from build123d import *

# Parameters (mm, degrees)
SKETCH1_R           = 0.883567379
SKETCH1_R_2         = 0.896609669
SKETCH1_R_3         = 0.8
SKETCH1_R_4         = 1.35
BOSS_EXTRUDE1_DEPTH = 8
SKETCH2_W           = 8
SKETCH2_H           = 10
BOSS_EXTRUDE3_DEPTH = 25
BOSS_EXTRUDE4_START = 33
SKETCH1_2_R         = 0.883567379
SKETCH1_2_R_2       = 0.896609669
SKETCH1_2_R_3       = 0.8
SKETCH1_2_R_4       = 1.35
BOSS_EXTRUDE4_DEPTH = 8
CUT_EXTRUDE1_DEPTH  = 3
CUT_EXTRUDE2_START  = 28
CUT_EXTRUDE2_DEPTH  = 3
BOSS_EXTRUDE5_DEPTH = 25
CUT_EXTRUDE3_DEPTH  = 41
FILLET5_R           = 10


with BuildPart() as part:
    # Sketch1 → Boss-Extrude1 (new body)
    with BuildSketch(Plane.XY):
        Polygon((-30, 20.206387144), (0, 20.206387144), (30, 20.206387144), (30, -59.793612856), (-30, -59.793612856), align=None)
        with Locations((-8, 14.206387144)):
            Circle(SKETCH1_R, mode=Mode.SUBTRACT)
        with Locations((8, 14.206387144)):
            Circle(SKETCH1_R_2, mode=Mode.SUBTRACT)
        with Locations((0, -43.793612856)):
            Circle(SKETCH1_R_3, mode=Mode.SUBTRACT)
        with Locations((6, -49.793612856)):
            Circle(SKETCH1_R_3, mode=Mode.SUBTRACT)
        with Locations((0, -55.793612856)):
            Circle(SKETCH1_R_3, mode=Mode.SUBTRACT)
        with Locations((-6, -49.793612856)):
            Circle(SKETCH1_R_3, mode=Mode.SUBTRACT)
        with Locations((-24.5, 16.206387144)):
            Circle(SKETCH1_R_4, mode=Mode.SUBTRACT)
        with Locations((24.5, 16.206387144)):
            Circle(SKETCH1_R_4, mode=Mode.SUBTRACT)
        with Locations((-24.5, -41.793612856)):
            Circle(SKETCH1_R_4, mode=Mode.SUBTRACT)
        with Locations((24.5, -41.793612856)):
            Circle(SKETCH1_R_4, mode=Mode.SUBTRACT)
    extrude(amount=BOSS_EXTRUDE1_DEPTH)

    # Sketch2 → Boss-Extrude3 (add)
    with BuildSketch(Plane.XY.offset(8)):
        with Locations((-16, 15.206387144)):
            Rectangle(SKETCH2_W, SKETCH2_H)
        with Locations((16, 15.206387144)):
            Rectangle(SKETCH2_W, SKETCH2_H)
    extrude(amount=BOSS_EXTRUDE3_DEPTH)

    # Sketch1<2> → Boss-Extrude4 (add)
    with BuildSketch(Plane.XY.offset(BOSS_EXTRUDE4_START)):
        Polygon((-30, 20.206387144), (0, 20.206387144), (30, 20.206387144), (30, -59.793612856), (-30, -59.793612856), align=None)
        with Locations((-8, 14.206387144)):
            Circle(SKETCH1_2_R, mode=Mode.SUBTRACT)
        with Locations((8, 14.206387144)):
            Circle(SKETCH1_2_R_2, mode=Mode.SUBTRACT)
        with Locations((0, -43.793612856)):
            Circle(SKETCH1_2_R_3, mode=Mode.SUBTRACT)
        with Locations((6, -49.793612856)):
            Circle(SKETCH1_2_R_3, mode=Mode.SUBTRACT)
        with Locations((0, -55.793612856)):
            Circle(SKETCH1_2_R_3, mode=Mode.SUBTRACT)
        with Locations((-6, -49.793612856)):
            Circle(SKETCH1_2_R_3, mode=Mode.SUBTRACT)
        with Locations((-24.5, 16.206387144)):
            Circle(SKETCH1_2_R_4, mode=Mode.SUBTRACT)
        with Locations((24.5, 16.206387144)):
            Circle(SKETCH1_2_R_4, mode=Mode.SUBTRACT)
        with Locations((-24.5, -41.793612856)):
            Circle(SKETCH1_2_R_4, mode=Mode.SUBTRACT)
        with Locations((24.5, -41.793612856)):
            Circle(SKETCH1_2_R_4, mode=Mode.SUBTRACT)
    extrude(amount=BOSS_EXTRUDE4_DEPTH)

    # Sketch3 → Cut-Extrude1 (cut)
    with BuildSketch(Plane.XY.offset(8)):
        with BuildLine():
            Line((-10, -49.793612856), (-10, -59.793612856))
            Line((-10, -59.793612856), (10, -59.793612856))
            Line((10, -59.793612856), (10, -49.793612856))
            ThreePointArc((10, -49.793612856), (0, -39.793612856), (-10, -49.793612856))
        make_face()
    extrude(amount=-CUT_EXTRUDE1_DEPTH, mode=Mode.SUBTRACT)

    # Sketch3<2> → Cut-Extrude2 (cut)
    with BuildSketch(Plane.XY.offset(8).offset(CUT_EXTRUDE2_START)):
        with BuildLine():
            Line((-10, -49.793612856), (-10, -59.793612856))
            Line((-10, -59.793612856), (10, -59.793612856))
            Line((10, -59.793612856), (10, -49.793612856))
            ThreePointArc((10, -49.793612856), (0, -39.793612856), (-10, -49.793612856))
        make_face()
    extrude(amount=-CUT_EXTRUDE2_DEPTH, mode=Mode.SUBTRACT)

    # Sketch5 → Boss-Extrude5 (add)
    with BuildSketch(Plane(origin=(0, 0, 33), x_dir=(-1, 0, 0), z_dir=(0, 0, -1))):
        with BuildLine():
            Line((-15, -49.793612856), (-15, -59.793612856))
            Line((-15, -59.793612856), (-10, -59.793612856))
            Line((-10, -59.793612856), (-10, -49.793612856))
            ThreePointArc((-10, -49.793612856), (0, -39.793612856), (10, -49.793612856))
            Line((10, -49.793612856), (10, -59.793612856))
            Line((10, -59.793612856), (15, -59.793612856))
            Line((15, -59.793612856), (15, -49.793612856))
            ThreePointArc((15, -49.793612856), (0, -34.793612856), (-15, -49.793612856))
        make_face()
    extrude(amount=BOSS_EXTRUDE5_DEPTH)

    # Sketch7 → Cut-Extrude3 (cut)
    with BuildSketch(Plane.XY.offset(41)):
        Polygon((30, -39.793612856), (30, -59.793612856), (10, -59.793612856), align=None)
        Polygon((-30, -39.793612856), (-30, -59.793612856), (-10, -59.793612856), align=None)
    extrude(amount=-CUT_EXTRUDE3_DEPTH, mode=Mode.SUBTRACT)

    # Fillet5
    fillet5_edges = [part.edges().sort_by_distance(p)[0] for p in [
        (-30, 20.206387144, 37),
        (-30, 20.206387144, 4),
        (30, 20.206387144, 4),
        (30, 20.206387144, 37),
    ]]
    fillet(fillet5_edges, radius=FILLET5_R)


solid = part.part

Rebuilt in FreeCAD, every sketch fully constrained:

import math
import FreeCAD as App
import Part
import Sketcher


def edges_at(feature, points):
    """Names of the edges that pass closest to the given points."""
    edges = feature.Shape.Edges
    near = lambda p: min(range(len(edges)), key=lambda i: edges[i].distToShape(Part.Vertex(*p))[0])
    return sorted({f"Edge{near(p) + 1}" for p in points})


def add_polygon(sketch, points):
    """Adds a closed chain of lines whose ends are joined by coincident constraints."""
    first, n = sketch.GeometryCount, len(points)
    for a, b in zip(points, points[1:] + points[:1]):
        sketch.addGeometry(Part.LineSegment(App.Vector(*a, 0), App.Vector(*b, 0)), False)
    for i in range(n):
        sketch.addConstraint(Sketcher.Constraint("Coincident", first + i, 2, first + (i + 1) % n, 1))

doc = App.newDocument("Part")
body = doc.addObject("PartDesign::Body", "Body")

sketch1 = body.newObject("Sketcher::SketchObject", "Sketch")
sketch1.AttachmentSupport = (doc.getObject("XY_Plane"), [""])
sketch1.MapMode = "FlatFace"
add_polygon(sketch1, [(30, 20.2), (-30, 20.2), (-30, -59.8), (30, -59.8)])
sketch1.addGeometry(Part.Circle(App.Vector(24.5, -41.8, 0), App.Vector(0, 0, 1), 1.4), False)
sketch1.addGeometry(Part.Circle(App.Vector(6, -49.8, 0), App.Vector(0, 0, 1), 0.8), False)
sketch1.addGeometry(Part.Circle(App.Vector(0, -55.8, 0), App.Vector(0, 0, 1), 0.8), False)
sketch1.addGeometry(Part.Circle(App.Vector(-6, -49.8, 0), App.Vector(0, 0, 1), 0.8), False)
sketch1.addGeometry(Part.Circle(App.Vector(0, -43.8, 0), App.Vector(0, 0, 1), 0.8), False)
sketch1.addGeometry(Part.Circle(App.Vector(-24.5, -41.8, 0), App.Vector(0, 0, 1), 1.4), False)
sketch1.addGeometry(Part.Circle(App.Vector(24.5, 16.2, 0), App.Vector(0, 0, 1), 1.4), False)
sketch1.addGeometry(Part.Circle(App.Vector(8, 14.2, 0), App.Vector(0, 0, 1), 0.9), False)
sketch1.addGeometry(Part.Circle(App.Vector(-8, 14.2, 0), App.Vector(0, 0, 1), 0.9), False)
sketch1.addGeometry(Part.Circle(App.Vector(-24.5, 16.2, 0), App.Vector(0, 0, 1), 1.4), False)
sketch1.addConstraint(Sketcher.Constraint("Horizontal", 0))
sketch1.addConstraint(Sketcher.Constraint("Vertical", 1))
sketch1.addConstraint(Sketcher.Constraint("Horizontal", 2))
sketch1.addConstraint(Sketcher.Constraint("Vertical", 3))
sketch1.addConstraint(Sketcher.Constraint("Equal", 5, 6))
sketch1.addConstraint(Sketcher.Constraint("Equal", 6, 7))
sketch1.addConstraint(Sketcher.Constraint("Equal", 7, 8))
sketch1.addConstraint(Sketcher.Constraint("Equal", 4, 9))
sketch1.addConstraint(Sketcher.Constraint("Equal", 9, 10))
sketch1.addConstraint(Sketcher.Constraint("Equal", 10, 13))
sketch1.addConstraint(Sketcher.Constraint("Symmetric", 5, 3, 7, 3, -2))
sketch1.addConstraint(Sketcher.Constraint("Symmetric", 4, 3, 9, 3, -2))
sketch1.addConstraint(Sketcher.Constraint("Symmetric", 11, 3, 12, 3, -2))
sketch1.addConstraint(Sketcher.Constraint("Symmetric", 10, 3, 13, 3, -2))
sketch1.addConstraint(Sketcher.Constraint("PointOnObject", 6, 3, -2))
sketch1.addConstraint(Sketcher.Constraint("PointOnObject", 8, 3, -2))
sketch1.addConstraint(Sketcher.Constraint("Vertical", 4, 3, 10, 3))
sketch1.addConstraint(Sketcher.Constraint("Diameter", 4, 2.7))
sketch1.addConstraint(Sketcher.Constraint("Diameter", 5, 1.6))
sketch1.addConstraint(Sketcher.Constraint("DistanceX", 0, 2, 0, 1, 60.0))
sketch1.addConstraint(Sketcher.Constraint("DistanceY", 1, 2, 1, 1, 80.0))
sketch1.addConstraint(Sketcher.Constraint("DistanceX", -1, 1, 5, 3, 6.0))
sketch1.addConstraint(Sketcher.Constraint("DistanceX", -1, 1, 11, 3, 8.0))
sketch1.addConstraint(Sketcher.Constraint("DistanceX", 0, 2, -1, 1, 30.0))
sketch1.addConstraint(Sketcher.Constraint("DistanceY", 5, 3, 4, 3, 8.0))
sketch1.addConstraint(Sketcher.Constraint("DistanceY", 6, 3, 5, 3, 6.0))
sketch1.addConstraint(Sketcher.Constraint("DistanceY", 5, 3, 8, 3, 6.0))
sketch1.addConstraint(Sketcher.Constraint("DistanceX", 9, 3, 4, 3, 49.0))
sketch1.addConstraint(Sketcher.Constraint("DistanceY", 4, 3, 10, 3, 58.0))
sketch1.addConstraint(Sketcher.Constraint("DistanceY", 11, 3, 10, 3, 2.0))
sketch1.addConstraint(Sketcher.Constraint("DistanceY", 13, 3, 0, 2, 4.0))
sketch1.addConstraint(Sketcher.Constraint("Diameter", 11, 1.793219))
sketch1.addConstraint(Sketcher.Constraint("Diameter", 12, 1.767135))
sketch1.addConstraint(Sketcher.Constraint("DistanceY", 4, 3, -1, 1, 41.793613))
pad1 = body.newObject("PartDesign::Pad", "Pad")
pad1.Profile = sketch1
pad1.Length = 8

sketch2 = body.newObject("Sketcher::SketchObject", "Sketch001")
sketch2.AttachmentSupport = (doc.getObject("XY_Plane"), [""])
sketch2.MapMode = "FlatFace"
sketch2.AttachmentOffset = App.Placement(App.Vector(0, 0, 8), App.Rotation())
add_polygon(sketch2, [(-20, 20), (-20, 10), (-12, 10), (-12, 20)])
add_polygon(sketch2, [(12, 20), (12, 10), (20, 10), (20, 20)])
sketch2.addConstraint(Sketcher.Constraint("Vertical", 0))
sketch2.addConstraint(Sketcher.Constraint("Horizontal", 1))
sketch2.addConstraint(Sketcher.Constraint("Vertical", 2))
sketch2.addConstraint(Sketcher.Constraint("Horizontal", 3))
sketch2.addConstraint(Sketcher.Constraint("Vertical", 4))
sketch2.addConstraint(Sketcher.Constraint("Horizontal", 5))
sketch2.addConstraint(Sketcher.Constraint("Vertical", 6))
sketch2.addConstraint(Sketcher.Constraint("Horizontal", 7))
sketch2.addConstraint(Sketcher.Constraint("Symmetric", 1, 2, 4, 2, -2))
sketch2.addConstraint(Sketcher.Constraint("Symmetric", 3, 2, 6, 2, -2))
sketch2.addConstraint(Sketcher.Constraint("DistanceX", 1, 1, 1, 2, 8.0))
sketch2.addConstraint(Sketcher.Constraint("DistanceY", 0, 2, 0, 1, 10.0))
sketch2.addConstraint(Sketcher.Constraint("DistanceX", 0, 2, -1, 1, 20.0))
sketch2.addConstraint(Sketcher.Constraint("DistanceY", -1, 1, 0, 2, 10.206387))
pad2 = body.newObject("PartDesign::Pad", "Pad001")
pad2.Profile = sketch2
pad2.Length = 25

sketch3 = body.newObject("Sketcher::SketchObject", "Sketch002")
sketch3.AttachmentSupport = (doc.getObject("XY_Plane"), [""])
sketch3.MapMode = "FlatFace"
sketch3.AttachmentOffset = App.Placement(App.Vector(0, 0, 33), App.Rotation())
add_polygon(sketch3, [(30, 20.2), (-30, 20.2), (-30, -59.8), (30, -59.8)])
sketch3.addGeometry(Part.Circle(App.Vector(24.5, -41.8, 0), App.Vector(0, 0, 1), 1.4), False)
sketch3.addGeometry(Part.Circle(App.Vector(6, -49.8, 0), App.Vector(0, 0, 1), 0.8), False)
sketch3.addGeometry(Part.Circle(App.Vector(0, -55.8, 0), App.Vector(0, 0, 1), 0.8), False)
sketch3.addGeometry(Part.Circle(App.Vector(-6, -49.8, 0), App.Vector(0, 0, 1), 0.8), False)
sketch3.addGeometry(Part.Circle(App.Vector(0, -43.8, 0), App.Vector(0, 0, 1), 0.8), False)
sketch3.addGeometry(Part.Circle(App.Vector(-24.5, -41.8, 0), App.Vector(0, 0, 1), 1.4), False)
sketch3.addGeometry(Part.Circle(App.Vector(24.5, 16.2, 0), App.Vector(0, 0, 1), 1.4), False)
sketch3.addGeometry(Part.Circle(App.Vector(8, 14.2, 0), App.Vector(0, 0, 1), 0.9), False)
sketch3.addGeometry(Part.Circle(App.Vector(-8, 14.2, 0), App.Vector(0, 0, 1), 0.9), False)
sketch3.addGeometry(Part.Circle(App.Vector(-24.5, 16.2, 0), App.Vector(0, 0, 1), 1.4), False)
sketch3.addConstraint(Sketcher.Constraint("Horizontal", 0))
sketch3.addConstraint(Sketcher.Constraint("Vertical", 1))
sketch3.addConstraint(Sketcher.Constraint("Horizontal", 2))
sketch3.addConstraint(Sketcher.Constraint("Vertical", 3))
sketch3.addConstraint(Sketcher.Constraint("Equal", 5, 6))
sketch3.addConstraint(Sketcher.Constraint("Equal", 6, 7))
sketch3.addConstraint(Sketcher.Constraint("Equal", 7, 8))
sketch3.addConstraint(Sketcher.Constraint("Equal", 4, 9))
sketch3.addConstraint(Sketcher.Constraint("Equal", 9, 10))
sketch3.addConstraint(Sketcher.Constraint("Equal", 10, 13))
sketch3.addConstraint(Sketcher.Constraint("Symmetric", 5, 3, 7, 3, -2))
sketch3.addConstraint(Sketcher.Constraint("Symmetric", 4, 3, 9, 3, -2))
sketch3.addConstraint(Sketcher.Constraint("Symmetric", 11, 3, 12, 3, -2))
sketch3.addConstraint(Sketcher.Constraint("Symmetric", 10, 3, 13, 3, -2))
sketch3.addConstraint(Sketcher.Constraint("PointOnObject", 6, 3, -2))
sketch3.addConstraint(Sketcher.Constraint("PointOnObject", 8, 3, -2))
sketch3.addConstraint(Sketcher.Constraint("Vertical", 4, 3, 10, 3))
sketch3.addConstraint(Sketcher.Constraint("Diameter", 4, 2.7))
sketch3.addConstraint(Sketcher.Constraint("Diameter", 5, 1.6))
sketch3.addConstraint(Sketcher.Constraint("DistanceX", 0, 2, 0, 1, 60.0))
sketch3.addConstraint(Sketcher.Constraint("DistanceY", 1, 2, 1, 1, 80.0))
sketch3.addConstraint(Sketcher.Constraint("DistanceX", -1, 1, 5, 3, 6.0))
sketch3.addConstraint(Sketcher.Constraint("DistanceX", -1, 1, 11, 3, 8.0))
sketch3.addConstraint(Sketcher.Constraint("DistanceX", 0, 2, -1, 1, 30.0))
sketch3.addConstraint(Sketcher.Constraint("DistanceY", 5, 3, 4, 3, 8.0))
sketch3.addConstraint(Sketcher.Constraint("DistanceY", 6, 3, 5, 3, 6.0))
sketch3.addConstraint(Sketcher.Constraint("DistanceY", 5, 3, 8, 3, 6.0))
sketch3.addConstraint(Sketcher.Constraint("DistanceX", 9, 3, 4, 3, 49.0))
sketch3.addConstraint(Sketcher.Constraint("DistanceY", 4, 3, 10, 3, 58.0))
sketch3.addConstraint(Sketcher.Constraint("DistanceY", 11, 3, 10, 3, 2.0))
sketch3.addConstraint(Sketcher.Constraint("DistanceY", 13, 3, 0, 2, 4.0))
sketch3.addConstraint(Sketcher.Constraint("Diameter", 11, 1.793219))
sketch3.addConstraint(Sketcher.Constraint("Diameter", 12, 1.767135))
sketch3.addConstraint(Sketcher.Constraint("DistanceY", 4, 3, -1, 1, 41.793613))
pad3 = body.newObject("PartDesign::Pad", "Pad002")
pad3.Profile = sketch3
pad3.Length = 8

sketch4 = body.newObject("Sketcher::SketchObject", "Sketch003")
sketch4.AttachmentSupport = (doc.getObject("XY_Plane"), [""])
sketch4.MapMode = "FlatFace"
sketch4.AttachmentOffset = App.Placement(App.Vector(0, 0, 8), App.Rotation())
sketch4.addGeometry(Part.LineSegment(App.Vector(-10, -50, 0), App.Vector(-10, -60, 0)), False)
sketch4.addGeometry(Part.LineSegment(App.Vector(-10, -60, 0), App.Vector(10, -60, 0)), False)
sketch4.addGeometry(Part.LineSegment(App.Vector(10, -60, 0), App.Vector(10, -50, 0)), False)
sketch4.addGeometry(Part.ArcOfCircle(Part.Circle(App.Vector(0, -50, 0), App.Vector(0, 0, 1), 10), math.radians(0), math.radians(180)), False)
sketch4.addConstraint(Sketcher.Constraint("Coincident", 0, 2, 1, 1))
sketch4.addConstraint(Sketcher.Constraint("Coincident", 1, 2, 2, 1))
sketch4.addConstraint(Sketcher.Constraint("Tangent", 2, 2, 3, 1))
sketch4.addConstraint(Sketcher.Constraint("Tangent", 3, 2, 0, 1))
sketch4.addConstraint(Sketcher.Constraint("Vertical", 0))
sketch4.addConstraint(Sketcher.Constraint("Horizontal", 1))
sketch4.addConstraint(Sketcher.Constraint("Vertical", 2))
sketch4.addConstraint(Sketcher.Constraint("PointOnObject", 3, 3, -2))
sketch4.addConstraint(Sketcher.Constraint("Radius", 3, 10.0))
sketch4.addConstraint(Sketcher.Constraint("DistanceY", 0, 2, 0, 1, 10.0))
sketch4.addConstraint(Sketcher.Constraint("DistanceY", 3, 3, -1, 1, 49.793613))
pocket1 = body.newObject("PartDesign::Pocket", "Pocket")
pocket1.Profile = sketch4
pocket1.Length = 3

sketch5 = body.newObject("Sketcher::SketchObject", "Sketch004")
sketch5.AttachmentSupport = (doc.getObject("XY_Plane"), [""])
sketch5.MapMode = "FlatFace"
sketch5.AttachmentOffset = App.Placement(App.Vector(0, 0, 36), App.Rotation())
sketch5.addGeometry(Part.LineSegment(App.Vector(-10, -50, 0), App.Vector(-10, -60, 0)), False)
sketch5.addGeometry(Part.LineSegment(App.Vector(-10, -60, 0), App.Vector(10, -60, 0)), False)
sketch5.addGeometry(Part.LineSegment(App.Vector(10, -60, 0), App.Vector(10, -50, 0)), False)
sketch5.addGeometry(Part.ArcOfCircle(Part.Circle(App.Vector(0, -50, 0), App.Vector(0, 0, 1), 10), math.radians(0), math.radians(180)), False)
sketch5.addConstraint(Sketcher.Constraint("Coincident", 0, 2, 1, 1))
sketch5.addConstraint(Sketcher.Constraint("Coincident", 1, 2, 2, 1))
sketch5.addConstraint(Sketcher.Constraint("Tangent", 2, 2, 3, 1))
sketch5.addConstraint(Sketcher.Constraint("Tangent", 3, 2, 0, 1))
sketch5.addConstraint(Sketcher.Constraint("Vertical", 0))
sketch5.addConstraint(Sketcher.Constraint("Horizontal", 1))
sketch5.addConstraint(Sketcher.Constraint("Vertical", 2))
sketch5.addConstraint(Sketcher.Constraint("PointOnObject", 3, 3, -2))
sketch5.addConstraint(Sketcher.Constraint("Radius", 3, 10.0))
sketch5.addConstraint(Sketcher.Constraint("DistanceY", 0, 2, 0, 1, 10.0))
sketch5.addConstraint(Sketcher.Constraint("DistanceY", 3, 3, -1, 1, 49.793613))
pocket2 = body.newObject("PartDesign::Pocket", "Pocket001")
pocket2.Profile = sketch5
pocket2.Length = 3

sketch6 = body.newObject("Sketcher::SketchObject", "Sketch005")
sketch6.AttachmentSupport = (doc.getObject("XY_Plane"), [""])
sketch6.MapMode = "FlatFace"
sketch6.AttachmentOffset = App.Placement(App.Vector(0, 0, 33), App.Rotation())
sketch6.addGeometry(Part.LineSegment(App.Vector(15, -50, 0), App.Vector(15, -60, 0)), False)
sketch6.addGeometry(Part.LineSegment(App.Vector(15, -60, 0), App.Vector(10, -60, 0)), False)
sketch6.addGeometry(Part.LineSegment(App.Vector(10, -60, 0), App.Vector(10, -50, 0)), False)
sketch6.addGeometry(Part.ArcOfCircle(Part.Circle(App.Vector(0, -50, 0), App.Vector(0, 0, 1), 10), math.radians(0), math.radians(180)), False)
sketch6.addGeometry(Part.LineSegment(App.Vector(-10, -50, 0), App.Vector(-10, -60, 0)), False)
sketch6.addGeometry(Part.LineSegment(App.Vector(-10, -60, 0), App.Vector(-15, -60, 0)), False)
sketch6.addGeometry(Part.LineSegment(App.Vector(-15, -60, 0), App.Vector(-15, -50, 0)), False)
sketch6.addGeometry(Part.ArcOfCircle(Part.Circle(App.Vector(0, -50, 0), App.Vector(0, 0, 1), 15), math.radians(0), math.radians(180)), False)
sketch6.addConstraint(Sketcher.Constraint("Coincident", 0, 2, 1, 1))
sketch6.addConstraint(Sketcher.Constraint("Coincident", 1, 2, 2, 1))
sketch6.addConstraint(Sketcher.Constraint("Tangent", 2, 2, 3, 1))
sketch6.addConstraint(Sketcher.Constraint("Tangent", 3, 2, 4, 1))
sketch6.addConstraint(Sketcher.Constraint("Coincident", 4, 2, 5, 1))
sketch6.addConstraint(Sketcher.Constraint("Coincident", 5, 2, 6, 1))
sketch6.addConstraint(Sketcher.Constraint("Tangent", 6, 2, 7, 2))
sketch6.addConstraint(Sketcher.Constraint("Tangent", 7, 1, 0, 1))
sketch6.addConstraint(Sketcher.Constraint("Vertical", 0))
sketch6.addConstraint(Sketcher.Constraint("Horizontal", 1))
sketch6.addConstraint(Sketcher.Constraint("Vertical", 2))
sketch6.addConstraint(Sketcher.Constraint("Vertical", 4))
sketch6.addConstraint(Sketcher.Constraint("Horizontal", 5))
sketch6.addConstraint(Sketcher.Constraint("Vertical", 6))
sketch6.addConstraint(Sketcher.Constraint("Coincident", 7, 3, 3, 3))
sketch6.addConstraint(Sketcher.Constraint("Symmetric", 1, 2, 4, 2, -2))
sketch6.addConstraint(Sketcher.Constraint("Radius", 3, 10.0))
sketch6.addConstraint(Sketcher.Constraint("Radius", 7, 15.0))
sketch6.addConstraint(Sketcher.Constraint("DistanceY", 0, 2, 0, 1, 10.0))
sketch6.addConstraint(Sketcher.Constraint("DistanceY", 3, 3, -1, 1, 49.793613))
pad4 = body.newObject("PartDesign::Pad", "Pad003")
pad4.Profile = sketch6
pad4.Length = 25
pad4.Reversed = True

sketch7 = body.newObject("Sketcher::SketchObject", "Sketch006")
sketch7.AttachmentSupport = (doc.getObject("XY_Plane"), [""])
sketch7.MapMode = "FlatFace"
sketch7.AttachmentOffset = App.Placement(App.Vector(0, 0, 41), App.Rotation())
add_polygon(sketch7, [(30, -60), (30, -40), (10, -60)])
add_polygon(sketch7, [(-30, -40), (-30, -60), (-10, -60)])
sketch7.addConstraint(Sketcher.Constraint("Vertical", 0))
sketch7.addConstraint(Sketcher.Constraint("Horizontal", 2))
sketch7.addConstraint(Sketcher.Constraint("Vertical", 3))
sketch7.addConstraint(Sketcher.Constraint("Horizontal", 4))
sketch7.addConstraint(Sketcher.Constraint("Symmetric", 2, 2, 3, 2, -2))
sketch7.addConstraint(Sketcher.Constraint("Perpendicular", 1, 5))
sketch7.addConstraint(Sketcher.Constraint("Horizontal", 0, 2, 5, 2))
sketch7.addConstraint(Sketcher.Constraint("Equal", 2, 4))
sketch7.addConstraint(Sketcher.Constraint("DistanceX", 2, 1, 2, 2, 20.0))
sketch7.addConstraint(Sketcher.Constraint("DistanceX", -1, 1, 0, 2, 30.0))
sketch7.addConstraint(Sketcher.Constraint("DistanceY", 0, 2, -1, 1, 39.793613))
pocket3 = body.newObject("PartDesign::Pocket", "Pocket002")
pocket3.Profile = sketch7
pocket3.Length = 41
doc.recompute()

fillet = body.newObject("PartDesign::Fillet", "Fillet")
fillet.Base = (pocket3, edges_at(pocket3, [
    (-30, 20.206, 37),
    (-30, 20.206, 4),
    (30, 20.206, 4),
    (30, 20.206, 37),
]))
fillet.Radius = 10

doc.recompute()
